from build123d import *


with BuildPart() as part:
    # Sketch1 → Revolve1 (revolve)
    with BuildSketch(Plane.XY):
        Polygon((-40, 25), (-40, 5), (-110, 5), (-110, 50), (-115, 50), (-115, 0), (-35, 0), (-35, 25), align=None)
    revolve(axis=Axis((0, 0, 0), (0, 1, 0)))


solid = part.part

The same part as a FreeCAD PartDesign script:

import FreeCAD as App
import Part
import Sketcher

V = App.Vector
Q = App.Units.Quantity


def add_polygon(sketch, points):
    """Adds a closed chain of lines whose ends are joined by coincident constraints."""
    first, n = sketch.GeometryCount, len(points)
    for a, b in zip(points, points[1:] + points[:1]):
        sketch.addGeometry(Part.LineSegment(App.Vector(*a, 0), App.Vector(*b, 0)), False)
    for i in range(n):
        sketch.addConstraint(Sketcher.Constraint("Coincident", first + i, 2, first + (i + 1) % n, 1))

doc = App.newDocument("Part")
body = doc.addObject("PartDesign::Body", "Body")

# Sketch on XY plane
sketch1 = body.newObject("Sketcher::SketchObject", "Sketch")
sketch1.AttachmentSupport = (doc.getObject("XY_Plane"), [""])
sketch1.MapMode = "FlatFace"
add_polygon(sketch1, [(-40, 25), (-40, 5), (-110, 5), (-110, 50), (-115, 50), (-115, 0), (-35, 0), (-35, 25)])  # lines 0-7
sketch1.addConstraint([
    Sketcher.Constraint("Vertical", 0),
    Sketcher.Constraint("Horizontal", 1),
    Sketcher.Constraint("Vertical", 2),
    Sketcher.Constraint("Horizontal", 3),
    Sketcher.Constraint("Vertical", 4),
    Sketcher.Constraint("Horizontal", 5),
    Sketcher.Constraint("Vertical", 6),
    Sketcher.Constraint("Horizontal", 7),
    Sketcher.Constraint("PointOnObject", 4, 2, -1),
    Sketcher.Constraint("Equal", 3, 7),
    Sketcher.Constraint("DistanceX", 1, 2, 1, 1, Q("70 mm")),
    Sketcher.Constraint("DistanceX", 3, 2, 3, 1, Q("5 mm")),
    Sketcher.Constraint("DistanceY", 0, 2, 0, 1, Q("20 mm")),
    Sketcher.Constraint("DistanceY", 2, 1, 2, 2, Q("45 mm")),
    Sketcher.Constraint("DistanceY", 4, 2, 4, 1, Q("50 mm")),
    Sketcher.Constraint("DistanceX", 0, 2, -1, 1, Q("40 mm")),
])
revolution = body.newObject("PartDesign::Revolution", "Revolution")
revolution.Profile = sketch1
revolution.ReferenceAxis = (sketch1, ["V_Axis"])
revolution.Angle = 360

doc.recompute()
